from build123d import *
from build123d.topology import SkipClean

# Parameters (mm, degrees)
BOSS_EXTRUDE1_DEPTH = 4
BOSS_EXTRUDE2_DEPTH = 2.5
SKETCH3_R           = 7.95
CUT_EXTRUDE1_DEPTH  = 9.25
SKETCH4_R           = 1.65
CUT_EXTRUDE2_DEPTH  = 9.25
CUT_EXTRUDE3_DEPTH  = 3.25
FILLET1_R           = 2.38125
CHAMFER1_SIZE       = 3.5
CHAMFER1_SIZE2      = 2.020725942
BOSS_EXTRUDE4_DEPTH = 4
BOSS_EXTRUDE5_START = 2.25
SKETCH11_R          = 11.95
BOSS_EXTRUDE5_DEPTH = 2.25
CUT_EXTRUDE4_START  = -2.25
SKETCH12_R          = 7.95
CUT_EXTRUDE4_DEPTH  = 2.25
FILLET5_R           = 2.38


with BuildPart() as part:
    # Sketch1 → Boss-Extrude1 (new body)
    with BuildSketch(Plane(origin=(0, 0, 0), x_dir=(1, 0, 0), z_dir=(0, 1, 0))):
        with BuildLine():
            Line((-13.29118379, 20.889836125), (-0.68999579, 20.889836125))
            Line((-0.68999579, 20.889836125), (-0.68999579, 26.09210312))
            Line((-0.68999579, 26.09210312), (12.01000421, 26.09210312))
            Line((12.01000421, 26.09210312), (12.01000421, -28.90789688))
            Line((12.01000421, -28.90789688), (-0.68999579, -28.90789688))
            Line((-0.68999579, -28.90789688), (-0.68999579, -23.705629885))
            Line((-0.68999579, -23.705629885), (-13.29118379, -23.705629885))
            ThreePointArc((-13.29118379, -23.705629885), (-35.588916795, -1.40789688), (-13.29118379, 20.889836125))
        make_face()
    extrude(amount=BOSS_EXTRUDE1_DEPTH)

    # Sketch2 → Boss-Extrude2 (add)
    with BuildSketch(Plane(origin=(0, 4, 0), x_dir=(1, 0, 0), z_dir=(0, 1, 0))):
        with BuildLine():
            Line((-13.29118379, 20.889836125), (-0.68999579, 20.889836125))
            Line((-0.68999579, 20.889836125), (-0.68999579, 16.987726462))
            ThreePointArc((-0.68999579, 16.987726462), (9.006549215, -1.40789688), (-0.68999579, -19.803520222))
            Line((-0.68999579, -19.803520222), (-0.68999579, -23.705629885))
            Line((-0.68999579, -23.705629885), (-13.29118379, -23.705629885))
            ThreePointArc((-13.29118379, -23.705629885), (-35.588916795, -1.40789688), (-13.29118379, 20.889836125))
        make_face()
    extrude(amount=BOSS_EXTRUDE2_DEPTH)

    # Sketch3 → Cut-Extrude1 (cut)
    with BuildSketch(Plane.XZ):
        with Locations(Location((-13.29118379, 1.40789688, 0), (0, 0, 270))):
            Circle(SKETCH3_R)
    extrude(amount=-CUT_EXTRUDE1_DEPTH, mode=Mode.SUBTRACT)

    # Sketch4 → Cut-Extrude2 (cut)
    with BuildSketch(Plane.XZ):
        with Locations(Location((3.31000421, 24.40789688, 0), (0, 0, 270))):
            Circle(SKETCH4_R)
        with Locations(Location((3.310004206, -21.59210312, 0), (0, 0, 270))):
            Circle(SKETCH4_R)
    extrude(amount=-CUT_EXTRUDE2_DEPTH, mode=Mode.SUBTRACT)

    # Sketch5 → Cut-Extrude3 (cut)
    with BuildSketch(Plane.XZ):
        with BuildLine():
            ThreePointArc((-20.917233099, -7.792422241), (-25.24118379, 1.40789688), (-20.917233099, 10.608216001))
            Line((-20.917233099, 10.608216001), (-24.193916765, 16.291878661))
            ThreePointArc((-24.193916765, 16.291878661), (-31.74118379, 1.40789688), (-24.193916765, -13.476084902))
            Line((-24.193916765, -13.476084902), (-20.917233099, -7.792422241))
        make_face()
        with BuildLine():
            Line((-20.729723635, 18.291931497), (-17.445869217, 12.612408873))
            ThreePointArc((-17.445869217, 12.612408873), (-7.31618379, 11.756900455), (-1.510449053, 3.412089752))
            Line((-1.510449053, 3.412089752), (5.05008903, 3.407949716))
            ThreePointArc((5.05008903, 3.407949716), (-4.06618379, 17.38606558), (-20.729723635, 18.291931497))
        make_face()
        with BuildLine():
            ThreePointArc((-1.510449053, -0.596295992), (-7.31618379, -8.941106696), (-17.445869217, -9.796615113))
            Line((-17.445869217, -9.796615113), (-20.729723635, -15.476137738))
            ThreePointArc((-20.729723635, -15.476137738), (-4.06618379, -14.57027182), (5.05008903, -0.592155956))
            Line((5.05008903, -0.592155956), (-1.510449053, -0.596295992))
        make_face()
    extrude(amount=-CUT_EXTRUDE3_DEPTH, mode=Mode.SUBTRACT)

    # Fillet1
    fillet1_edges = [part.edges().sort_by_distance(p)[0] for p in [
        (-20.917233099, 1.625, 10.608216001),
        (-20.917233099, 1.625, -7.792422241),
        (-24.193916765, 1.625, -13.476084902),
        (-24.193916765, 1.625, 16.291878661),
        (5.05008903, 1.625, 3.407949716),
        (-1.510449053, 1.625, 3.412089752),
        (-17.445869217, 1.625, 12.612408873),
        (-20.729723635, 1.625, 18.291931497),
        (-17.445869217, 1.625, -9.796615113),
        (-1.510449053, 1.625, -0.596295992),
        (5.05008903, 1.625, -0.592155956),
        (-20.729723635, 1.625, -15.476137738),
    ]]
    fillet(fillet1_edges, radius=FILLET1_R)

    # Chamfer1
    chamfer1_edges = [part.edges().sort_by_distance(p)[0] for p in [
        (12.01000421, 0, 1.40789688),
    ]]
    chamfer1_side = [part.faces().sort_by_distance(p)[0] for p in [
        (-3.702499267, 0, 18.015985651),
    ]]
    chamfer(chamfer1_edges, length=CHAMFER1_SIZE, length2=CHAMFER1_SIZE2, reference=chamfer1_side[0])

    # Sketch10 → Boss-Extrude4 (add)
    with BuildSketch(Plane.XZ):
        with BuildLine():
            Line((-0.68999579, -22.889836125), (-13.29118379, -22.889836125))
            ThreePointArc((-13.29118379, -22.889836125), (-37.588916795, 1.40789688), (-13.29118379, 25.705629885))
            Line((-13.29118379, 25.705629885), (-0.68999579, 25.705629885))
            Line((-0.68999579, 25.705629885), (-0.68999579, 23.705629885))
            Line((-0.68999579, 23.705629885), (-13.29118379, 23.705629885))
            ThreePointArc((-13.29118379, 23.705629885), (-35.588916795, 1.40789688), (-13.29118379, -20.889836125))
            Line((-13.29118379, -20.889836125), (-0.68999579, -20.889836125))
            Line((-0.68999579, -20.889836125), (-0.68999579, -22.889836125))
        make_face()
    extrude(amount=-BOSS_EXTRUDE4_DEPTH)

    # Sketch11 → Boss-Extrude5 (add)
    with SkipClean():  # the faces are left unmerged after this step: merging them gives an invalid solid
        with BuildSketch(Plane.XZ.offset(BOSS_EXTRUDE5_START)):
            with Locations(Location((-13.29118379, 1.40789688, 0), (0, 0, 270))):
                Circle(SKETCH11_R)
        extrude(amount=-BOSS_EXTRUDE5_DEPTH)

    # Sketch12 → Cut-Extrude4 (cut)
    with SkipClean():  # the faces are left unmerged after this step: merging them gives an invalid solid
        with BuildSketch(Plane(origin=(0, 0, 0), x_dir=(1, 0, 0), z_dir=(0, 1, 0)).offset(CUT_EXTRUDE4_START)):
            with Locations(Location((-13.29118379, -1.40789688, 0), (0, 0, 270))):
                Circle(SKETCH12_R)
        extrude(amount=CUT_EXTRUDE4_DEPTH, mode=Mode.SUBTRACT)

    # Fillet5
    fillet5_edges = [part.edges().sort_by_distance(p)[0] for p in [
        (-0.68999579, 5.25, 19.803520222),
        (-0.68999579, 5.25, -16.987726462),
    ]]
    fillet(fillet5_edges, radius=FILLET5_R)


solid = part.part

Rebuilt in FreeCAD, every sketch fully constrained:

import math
import FreeCAD as App
import Part
import Sketcher
Q = App.Units.Quantity


def edges_at(feature, points):
    """Names of the edges that pass closest to the given points."""
    edges = feature.Shape.Edges
    near = lambda p: min(range(len(edges)), key=lambda i: edges[i].distToShape(Part.Vertex(*p))[0])
    return sorted({f"Edge{near(p) + 1}" for p in points})

doc = App.newDocument("Part")
body = doc.addObject("PartDesign::Body", "Body")

sketch1 = doc.addObject("Sketcher::SketchObject", "Sketch")
body.addObject(sketch1)
sketch1.AttachmentSupport = (doc.XZ_Plane, [""])
sketch1.MapMode = "FlatFace"
sketch1.addGeometry(Part.LineSegment(App.Vector(-1, -21, 0), App.Vector(-13, -21, 0)), False)
sketch1.addGeometry(Part.ArcOfCircle(Part.Circle(App.Vector(-13, 1, 0), App.Vector(0, 0, 1), 22), math.radians(90), math.radians(270)), False)
sketch1.addGeometry(Part.LineSegment(App.Vector(-13, 24, 0), App.Vector(-1, 24, 0)), False)
sketch1.addGeometry(Part.LineSegment(App.Vector(-1, 24, 0), App.Vector(-1, 29, 0)), False)
sketch1.addGeometry(Part.LineSegment(App.Vector(-1, 29, 0), App.Vector(12, 29, 0)), False)
sketch1.addGeometry(Part.LineSegment(App.Vector(12, 29, 0), App.Vector(12, -26, 0)), False)
sketch1.addGeometry(Part.LineSegment(App.Vector(12, -26, 0), App.Vector(-1, -26, 0)), False)
sketch1.addGeometry(Part.LineSegment(App.Vector(-1, -26, 0), App.Vector(-1, -21, 0)), False)
sketch1.addConstraint(Sketcher.Constraint("Tangent", 0, 2, 1, 2))
sketch1.addConstraint(Sketcher.Constraint("Tangent", 1, 1, 2, 1))
sketch1.addConstraint(Sketcher.Constraint("Coincident", 2, 2, 3, 1))
sketch1.addConstraint(Sketcher.Constraint("Coincident", 3, 2, 4, 1))
sketch1.addConstraint(Sketcher.Constraint("Coincident", 4, 2, 5, 1))
sketch1.addConstraint(Sketcher.Constraint("Coincident", 5, 2, 6, 1))
sketch1.addConstraint(Sketcher.Constraint("Coincident", 6, 2, 7, 1))
sketch1.addConstraint(Sketcher.Constraint("Coincident", 7, 2, 0, 1))
sketch1.addConstraint(Sketcher.Constraint("Horizontal", 0))
sketch1.addConstraint(Sketcher.Constraint("Horizontal", 2))
sketch1.addConstraint(Sketcher.Constraint("Vertical", 3))
sketch1.addConstraint(Sketcher.Constraint("Horizontal", 4))
sketch1.addConstraint(Sketcher.Constraint("Vertical", 5))
sketch1.addConstraint(Sketcher.Constraint("Horizontal", 6))
sketch1.addConstraint(Sketcher.Constraint("Vertical", 7))
sketch1.addConstraint(Sketcher.Constraint("Vertical", 3, 2, 6, 2))
sketch1.addConstraint(Sketcher.Constraint("Equal", 3, 7))
sketch1.addConstraint(Sketcher.Constraint("DistanceY", 5, 2, 5, 1, Q("55 mm")))
sketch1.addConstraint(Sketcher.Constraint("DistanceX", 4, 1, 4, 2, Q("12.7 mm")))
sketch1.addConstraint(Sketcher.Constraint("Radius", 1, Q("22.297733 mm")))
sketch1.addConstraint(Sketcher.Constraint("DistanceX", 0, 2, 0, 1, Q("12.601188 mm")))
sketch1.addConstraint(Sketcher.Constraint("DistanceY", -1, 1, 1, 1, Q("23.70563 mm")))
sketch1.addConstraint(Sketcher.Constraint("DistanceX", 1, 3, -1, 1, Q("13.291184 mm")))
pad1 = doc.addObject("PartDesign::Pad", "Pad")
body.addObject(pad1)
pad1.Profile = sketch1
pad1.Length = 4
pad1.Reversed = True

sketch2 = doc.addObject("Sketcher::SketchObject", "Sketch001")
body.addObject(sketch2)
sketch2.AttachmentSupport = (doc.XZ_Plane, [""])
sketch2.MapMode = "FlatFace"
sketch2.AttachmentOffset = App.Placement(App.Vector(0, 0, -4), App.Rotation())
sketch2.addGeometry(Part.LineSegment(App.Vector(-0.7, -20.9, 0), App.Vector(-13.3, -20.9, 0)), False)
sketch2.addGeometry(Part.ArcOfCircle(Part.Circle(App.Vector(-13.3, 1.4, 0), App.Vector(0, 0, 1), 22.3), math.radians(90), math.radians(270)), False)
sketch2.addGeometry(Part.LineSegment(App.Vector(-13.3, 23.7, 0), App.Vector(-0.7, 23.7, 0)), False)
sketch2.addGeometry(Part.LineSegment(App.Vector(-0.7, 23.7, 0), App.Vector(-0.7, 19.8, 0)), False)
sketch2.addGeometry(Part.ArcOfCircle(Part.Circle(App.Vector(-13.3, 1.4, 0), App.Vector(0, 0, 1), 22.3), math.radians(-56), math.radians(56)), False)
sketch2.addGeometry(Part.LineSegment(App.Vector(-0.7, -17, 0), App.Vector(-0.7, -20.9, 0)), False)
sketch2.addConstraint(Sketcher.Constraint("Tangent", 0, 2, 1, 2))
sketch2.addConstraint(Sketcher.Constraint("Tangent", 1, 1, 2, 1))
sketch2.addConstraint(Sketcher.Constraint("Coincident", 2, 2, 3, 1))
sketch2.addConstraint(Sketcher.Constraint("Coincident", 3, 2, 4, 2))
sketch2.addConstraint(Sketcher.Constraint("Coincident", 4, 1, 5, 1))
sketch2.addConstraint(Sketcher.Constraint("Coincident", 5, 2, 0, 1))
sketch2.addConstraint(Sketcher.Constraint("Horizontal", 0))
sketch2.addConstraint(Sketcher.Constraint("Horizontal", 2))
sketch2.addConstraint(Sketcher.Constraint("Vertical", 3))
sketch2.addConstraint(Sketcher.Constraint("Vertical", 5))
sketch2.addConstraint(Sketcher.Constraint("Coincident", 4, 3, 1, 3))
sketch2.addConstraint(Sketcher.Constraint("Equal", 1, 4))
sketch2.addConstraint(Sketcher.Constraint("Vertical", 3, 2, 4, 1))
sketch2.addConstraint(Sketcher.Constraint("Radius", 1, Q("22.297733 mm")))
sketch2.addConstraint(Sketcher.Constraint("DistanceY", 3, 2, 3, 1, Q("3.90211 mm")))
sketch2.addConstraint(Sketcher.Constraint("DistanceY", -1, 1, 1, 1, Q("23.70563 mm")))
sketch2.addConstraint(Sketcher.Constraint("DistanceX", 1, 3, -1, 1, Q("13.291184 mm")))
pad2 = doc.addObject("PartDesign::Pad", "Pad001")
body.addObject(pad2)
pad2.Profile = sketch2
pad2.Length = 2.5
pad2.Reversed = True

sketch3 = doc.addObject("Sketcher::SketchObject", "Sketch002")
body.addObject(sketch3)
sketch3.AttachmentSupport = (doc.XZ_Plane, [""])
sketch3.MapMode = "FlatFace"
sketch3.addGeometry(Part.Circle(App.Vector(-13, 1, 0), App.Vector(0, 0, 1), 8), False)
sketch3.addConstraint(Sketcher.Constraint("Diameter", 0, Q("15.9 mm")))
sketch3.addConstraint(Sketcher.Constraint("DistanceX", 0, 3, -1, 1, Q("13.291184 mm")))
sketch3.addConstraint(Sketcher.Constraint("DistanceY", -1, 1, 0, 3, Q("1.407897 mm")))
pocket1 = doc.addObject("PartDesign::Pocket", "Pocket")
body.addObject(pocket1)
pocket1.Profile = sketch3
pocket1.Length = 9.25

sketch4 = doc.addObject("Sketcher::SketchObject", "Sketch003")
body.addObject(sketch4)
sketch4.AttachmentSupport = (doc.XZ_Plane, [""])
sketch4.MapMode = "FlatFace"
sketch4.addGeometry(Part.Circle(App.Vector(3.3, 24.4, 0), App.Vector(0, 0, 1), 1.6), False)
sketch4.addGeometry(Part.Circle(App.Vector(3.3, -21.6, 0), App.Vector(0, 0, 1), 1.6), False)
sketch4.addConstraint(Sketcher.Constraint("Equal", 0, 1))
sketch4.addConstraint(Sketcher.Constraint("Vertical", 0, 3, 1, 3))
sketch4.addConstraint(Sketcher.Constraint("Diameter", 0, Q("3.3 mm")))
sketch4.addConstraint(Sketcher.Constraint("DistanceY", 1, 3, 0, 3, Q("46 mm")))
sketch4.addConstraint(Sketcher.Constraint("DistanceX", -1, 1, 0, 3, Q("3.310004 mm")))
sketch4.addConstraint(Sketcher.Constraint("DistanceY", -1, 1, 0, 3, Q("24.407897 mm")))
pocket2 = doc.addObject("PartDesign::Pocket", "Pocket001")
body.addObject(pocket2)
pocket2.Profile = sketch4
pocket2.Length = 9.25

sketch5 = doc.addObject("Sketcher::SketchObject", "Sketch004")
body.addObject(sketch5)
sketch5.AttachmentSupport = (doc.XZ_Plane, [""])
sketch5.MapMode = "FlatFace"
sketch5.addGeometry(Part.ArcOfCircle(Part.Circle(App.Vector(-13, 1, 0), App.Vector(0, 0, 1), 12), math.radians(130), math.radians(230)), False)
sketch5.addGeometry(Part.LineSegment(App.Vector(-21, 11, 0), App.Vector(-24, 16, 0)), False)
sketch5.addGeometry(Part.ArcOfCircle(Part.Circle(App.Vector(-13, 1, 0), App.Vector(0, 0, 1), 18), math.radians(126), math.radians(234)), False)
sketch5.addGeometry(Part.LineSegment(App.Vector(-24, -13, 0), App.Vector(-21, -8, 0)), False)
sketch5.addGeometry(Part.LineSegment(App.Vector(-21, 18, 0), App.Vector(-17, 13, 0)), False)
sketch5.addGeometry(Part.ArcOfCircle(Part.Circle(App.Vector(-13, 1, 0), App.Vector(0, 0, 1), 12), math.radians(10), math.radians(110)), False)
sketch5.addGeometry(Part.LineSegment(App.Vector(-2, 3, 0), App.Vector(5, 3, 0)), False)
sketch5.addGeometry(Part.ArcOfCircle(Part.Circle(App.Vector(-13, 1, 0), App.Vector(0, 0, 1), 18), math.radians(6), math.radians(114)), False)
sketch5.addGeometry(Part.ArcOfCircle(Part.Circle(App.Vector(-13, 1, 0), App.Vector(0, 0, 1), 12), math.radians(-110), math.radians(-10)), False)
sketch5.addGeometry(Part.LineSegment(App.Vector(-17, -10, 0), App.Vector(-21, -15, 0)), False)
sketch5.addGeometry(Part.ArcOfCircle(Part.Circle(App.Vector(-13, 1, 0), App.Vector(0, 0, 1), 18), math.radians(-114), math.radians(-6)), False)
sketch5.addGeometry(Part.LineSegment(App.Vector(5, -1, 0), App.Vector(-2, -1, 0)), False)
sketch5.addConstraint(Sketcher.Constraint("Coincident", 0, 1, 1, 1))
sketch5.addConstraint(Sketcher.Constraint("Coincident", 1, 2, 2, 1))
sketch5.addConstraint(Sketcher.Constraint("Coincident", 2, 2, 3, 1))
sketch5.addConstraint(Sketcher.Constraint("Coincident", 3, 2, 0, 2))
sketch5.addConstraint(Sketcher.Constraint("Coincident", 4, 2, 5, 2))
sketch5.addConstraint(Sketcher.Constraint("Coincident", 5, 1, 6, 1))
sketch5.addConstraint(Sketcher.Constraint("Coincident", 6, 2, 7, 1))
sketch5.addConstraint(Sketcher.Constraint("Coincident", 7, 2, 4, 1))
sketch5.addConstraint(Sketcher.Constraint("Coincident", 8, 1, 9, 1))
sketch5.addConstraint(Sketcher.Constraint("Coincident", 9, 2, 10, 1))
sketch5.addConstraint(Sketcher.Constraint("Coincident", 10, 2, 11, 1))
sketch5.addConstraint(Sketcher.Constraint("Coincident", 11, 2, 8, 2))
sketch5.addConstraint(Sketcher.Constraint("Coincident", 2, 3, 0, 3))
sketch5.addConstraint(Sketcher.Constraint("Coincident", 5, 3, 0, 3))
sketch5.addConstraint(Sketcher.Constraint("Coincident", 7, 3, 0, 3))
sketch5.addConstraint(Sketcher.Constraint("Coincident", 8, 3, 0, 3))
sketch5.addConstraint(Sketcher.Constraint("Coincident", 10, 3, 0, 3))
sketch5.addConstraint(Sketcher.Constraint("Equal", 0, 5))
sketch5.addConstraint(Sketcher.Constraint("Equal", 2, 7))
sketch5.addConstraint(Sketcher.Constraint("Equal", 5, 8))
sketch5.addConstraint(Sketcher.Constraint("Equal", 7, 10))
sketch5.addConstraint(Sketcher.Constraint("Vertical", 1, 2, 2, 2))
sketch5.addConstraint(Sketcher.Constraint("Vertical", 0, 1, 3, 2))
sketch5.addConstraint(Sketcher.Constraint("Vertical", 4, 2, 8, 1))
sketch5.addConstraint(Sketcher.Constraint("Vertical", 7, 2, 9, 2))
sketch5.addConstraint(Sketcher.Constraint("Vertical", 6, 2, 10, 2))
sketch5.addConstraint(Sketcher.Constraint("Vertical", 5, 1, 11, 2))
sketch5.addConstraint(Sketcher.Constraint("Equal", 3, 4))
sketch5.addConstraint(Sketcher.Constraint("Equal", 4, 6))
sketch5.addConstraint(Sketcher.Constraint("Radius", 0, Q("11.95 mm")))
sketch5.addConstraint(Sketcher.Constraint("Radius", 2, Q("18.45 mm")))
sketch5.addConstraint(Sketcher.Constraint("Distance", 1, Q("6.560539 mm")))
sketch5.addConstraint(Sketcher.Constraint("DistanceY", -1, 1, 1, 2, Q("16.291879 mm")))
sketch5.addConstraint(Sketcher.Constraint("DistanceX", 4, 2, -1, 1, Q("17.445869 mm")))
sketch5.addConstraint(Sketcher.Constraint("DistanceY", -1, 1, 4, 2, Q("12.612409 mm")))
sketch5.addConstraint(Sketcher.Constraint("DistanceX", 5, 1, -1, 1, Q("1.510449 mm")))
sketch5.addConstraint(Sketcher.Constraint("DistanceY", -1, 1, 5, 1, Q("3.41209 mm")))
pocket3 = doc.addObject("PartDesign::Pocket", "Pocket002")
body.addObject(pocket3)
pocket3.Profile = sketch5
pocket3.Length = 3.25
doc.recompute()

fillet = doc.addObject("PartDesign::Fillet", "Fillet")
body.addObject(fillet)
fillet.Base = (pocket3, edges_at(pocket3, [
    (-20.917, 1.625, 10.608),
    (-20.917, 1.625, -7.792),
    (-24.194, 1.625, -13.476),
    (-24.194, 1.625, 16.292),
    (5.05, 1.625, 3.408),
    (-1.51, 1.625, 3.412),
    (-17.446, 1.625, 12.612),
    (-20.73, 1.625, 18.292),
    (-17.446, 1.625, -9.797),
    (-1.51, 1.625, -0.596),
    (5.05, 1.625, -0.592),
    (-20.73, 1.625, -15.476),
]))
fillet.Radius = 2.38125
doc.recompute()

chamfer = doc.addObject("PartDesign::Chamfer", "Chamfer")
body.addObject(chamfer)
chamfer.Base = (fillet, edges_at(fillet, [(12.01, 0, 1.408)]))
chamfer.ChamferType = "Two distances"
chamfer.Size = 3.5
chamfer.Size2 = 2.020726

sketch6 = doc.addObject("Sketcher::SketchObject", "Sketch005")
body.addObject(sketch6)
sketch6.AttachmentSupport = (doc.XZ_Plane, [""])
sketch6.MapMode = "FlatFace"
sketch6.addGeometry(Part.LineSegment(App.Vector(-13.3, -22.9, 0), App.Vector(-0.7, -22.9, 0)), False)
sketch6.addGeometry(Part.LineSegment(App.Vector(-0.7, -22.9, 0), App.Vector(-0.7, -20.9, 0)), False)
sketch6.addGeometry(Part.LineSegment(App.Vector(-0.7, -20.9, 0), App.Vector(-13.3, -20.9, 0)), False)
sketch6.addGeometry(Part.ArcOfCircle(Part.Circle(App.Vector(-13.3, 1.4, 0), App.Vector(0, 0, 1), 22.3), math.radians(90), math.radians(270)), False)
sketch6.addGeometry(Part.LineSegment(App.Vector(-13.3, 23.7, 0), App.Vector(-0.7, 23.7, 0)), False)
sketch6.addGeometry(Part.LineSegment(App.Vector(-0.7, 23.7, 0), App.Vector(-0.7, 25.7, 0)), False)
sketch6.addGeometry(Part.LineSegment(App.Vector(-0.7, 25.7, 0), App.Vector(-13.3, 25.7, 0)), False)
sketch6.addGeometry(Part.ArcOfCircle(Part.Circle(App.Vector(-13.3, 1.4, 0), App.Vector(0, 0, 1), 24.3), math.radians(90), math.radians(270)), False)
sketch6.addConstraint(Sketcher.Constraint("Coincident", 0, 2, 1, 1))
sketch6.addConstraint(Sketcher.Constraint("Coincident", 1, 2, 2, 1))
sketch6.addConstraint(Sketcher.Constraint("Tangent", 2, 2, 3, 2))
sketch6.addConstraint(Sketcher.Constraint("Tangent", 3, 1, 4, 1))
sketch6.addConstraint(Sketcher.Constraint("Coincident", 4, 2, 5, 1))
sketch6.addConstraint(Sketcher.Constraint("Coincident", 5, 2, 6, 1))
sketch6.addConstraint(Sketcher.Constraint("Tangent", 6, 2, 7, 1))
sketch6.addConstraint(Sketcher.Constraint("Tangent", 7, 2, 0, 1))
sketch6.addConstraint(Sketcher.Constraint("Horizontal", 0))
sketch6.addConstraint(Sketcher.Constraint("Vertical", 1))
sketch6.addConstraint(Sketcher.Constraint("Horizontal", 2))
sketch6.addConstraint(Sketcher.Constraint("Horizontal", 4))
sketch6.addConstraint(Sketcher.Constraint("Vertical", 5))
sketch6.addConstraint(Sketcher.Constraint("Horizontal", 6))
sketch6.addConstraint(Sketcher.Constraint("Coincident", 7, 3, 3, 3))
sketch6.addConstraint(Sketcher.Constraint("Vertical", 1, 2, 4, 2))
sketch6.addConstraint(Sketcher.Constraint("DistanceY", 1, 1, 1, 2, Q("2 mm")))
sketch6.addConstraint(Sketcher.Constraint("Radius", 3, Q("22.297733 mm")))
sketch6.addConstraint(Sketcher.Constraint("DistanceX", 0, 1, 0, 2, Q("12.601188 mm")))
sketch6.addConstraint(Sketcher.Constraint("DistanceY", -1, 1, 3, 1, Q("23.70563 mm")))
sketch6.addConstraint(Sketcher.Constraint("DistanceX", 3, 3, -1, 1, Q("13.291184 mm")))
pad3 = doc.addObject("PartDesign::Pad", "Pad002")
body.addObject(pad3)
pad3.Profile = sketch6
pad3.Length = 4
pad3.Reversed = True

sketch7 = doc.addObject("Sketcher::SketchObject", "Sketch006")
body.addObject(sketch7)
sketch7.AttachmentSupport = (doc.XZ_Plane, [""])
sketch7.MapMode = "FlatFace"
sketch7.AttachmentOffset = App.Placement(App.Vector(0, 0, 2.25), App.Rotation())
sketch7.addGeometry(Part.Circle(App.Vector(-13, 1, 0), App.Vector(0, 0, 1), 12), False)
sketch7.addConstraint(Sketcher.Constraint("Diameter", 0, Q("23.9 mm")))
sketch7.addConstraint(Sketcher.Constraint("DistanceX", 0, 3, -1, 1, Q("13.291184 mm")))
sketch7.addConstraint(Sketcher.Constraint("DistanceY", -1, 1, 0, 3, Q("1.407897 mm")))
pad4 = doc.addObject("PartDesign::Pad", "Pad003")
body.addObject(pad4)
pad4.Profile = sketch7
pad4.Length = 2.25
pad4.Reversed = True

sketch8 = doc.addObject("Sketcher::SketchObject", "Sketch007")
body.addObject(sketch8)
sketch8.AttachmentSupport = (doc.XZ_Plane, [""])
sketch8.MapMode = "FlatFace"
sketch8.AttachmentOffset = App.Placement(App.Vector(0, 0, 2.25), App.Rotation())
sketch8.addGeometry(Part.Circle(App.Vector(-13, 1, 0), App.Vector(0, 0, 1), 8), False)
sketch8.addConstraint(Sketcher.Constraint("Diameter", 0, Q("15.9 mm")))
sketch8.addConstraint(Sketcher.Constraint("DistanceX", 0, 3, -1, 1, Q("13.291184 mm")))
sketch8.addConstraint(Sketcher.Constraint("DistanceY", -1, 1, 0, 3, Q("1.407897 mm")))
pocket4 = doc.addObject("PartDesign::Pocket", "Pocket003")
body.addObject(pocket4)
pocket4.Profile = sketch8
pocket4.Length = 2.25
doc.recompute()

fillet2 = doc.addObject("PartDesign::Fillet", "Fillet001")
body.addObject(fillet2)
fillet2.Base = (pocket4, edges_at(pocket4, [(-0.69, 5.25, 19.804), (-0.69, 5.25, -16.988)]))
fillet2.Radius = 2.38

doc.recompute()
